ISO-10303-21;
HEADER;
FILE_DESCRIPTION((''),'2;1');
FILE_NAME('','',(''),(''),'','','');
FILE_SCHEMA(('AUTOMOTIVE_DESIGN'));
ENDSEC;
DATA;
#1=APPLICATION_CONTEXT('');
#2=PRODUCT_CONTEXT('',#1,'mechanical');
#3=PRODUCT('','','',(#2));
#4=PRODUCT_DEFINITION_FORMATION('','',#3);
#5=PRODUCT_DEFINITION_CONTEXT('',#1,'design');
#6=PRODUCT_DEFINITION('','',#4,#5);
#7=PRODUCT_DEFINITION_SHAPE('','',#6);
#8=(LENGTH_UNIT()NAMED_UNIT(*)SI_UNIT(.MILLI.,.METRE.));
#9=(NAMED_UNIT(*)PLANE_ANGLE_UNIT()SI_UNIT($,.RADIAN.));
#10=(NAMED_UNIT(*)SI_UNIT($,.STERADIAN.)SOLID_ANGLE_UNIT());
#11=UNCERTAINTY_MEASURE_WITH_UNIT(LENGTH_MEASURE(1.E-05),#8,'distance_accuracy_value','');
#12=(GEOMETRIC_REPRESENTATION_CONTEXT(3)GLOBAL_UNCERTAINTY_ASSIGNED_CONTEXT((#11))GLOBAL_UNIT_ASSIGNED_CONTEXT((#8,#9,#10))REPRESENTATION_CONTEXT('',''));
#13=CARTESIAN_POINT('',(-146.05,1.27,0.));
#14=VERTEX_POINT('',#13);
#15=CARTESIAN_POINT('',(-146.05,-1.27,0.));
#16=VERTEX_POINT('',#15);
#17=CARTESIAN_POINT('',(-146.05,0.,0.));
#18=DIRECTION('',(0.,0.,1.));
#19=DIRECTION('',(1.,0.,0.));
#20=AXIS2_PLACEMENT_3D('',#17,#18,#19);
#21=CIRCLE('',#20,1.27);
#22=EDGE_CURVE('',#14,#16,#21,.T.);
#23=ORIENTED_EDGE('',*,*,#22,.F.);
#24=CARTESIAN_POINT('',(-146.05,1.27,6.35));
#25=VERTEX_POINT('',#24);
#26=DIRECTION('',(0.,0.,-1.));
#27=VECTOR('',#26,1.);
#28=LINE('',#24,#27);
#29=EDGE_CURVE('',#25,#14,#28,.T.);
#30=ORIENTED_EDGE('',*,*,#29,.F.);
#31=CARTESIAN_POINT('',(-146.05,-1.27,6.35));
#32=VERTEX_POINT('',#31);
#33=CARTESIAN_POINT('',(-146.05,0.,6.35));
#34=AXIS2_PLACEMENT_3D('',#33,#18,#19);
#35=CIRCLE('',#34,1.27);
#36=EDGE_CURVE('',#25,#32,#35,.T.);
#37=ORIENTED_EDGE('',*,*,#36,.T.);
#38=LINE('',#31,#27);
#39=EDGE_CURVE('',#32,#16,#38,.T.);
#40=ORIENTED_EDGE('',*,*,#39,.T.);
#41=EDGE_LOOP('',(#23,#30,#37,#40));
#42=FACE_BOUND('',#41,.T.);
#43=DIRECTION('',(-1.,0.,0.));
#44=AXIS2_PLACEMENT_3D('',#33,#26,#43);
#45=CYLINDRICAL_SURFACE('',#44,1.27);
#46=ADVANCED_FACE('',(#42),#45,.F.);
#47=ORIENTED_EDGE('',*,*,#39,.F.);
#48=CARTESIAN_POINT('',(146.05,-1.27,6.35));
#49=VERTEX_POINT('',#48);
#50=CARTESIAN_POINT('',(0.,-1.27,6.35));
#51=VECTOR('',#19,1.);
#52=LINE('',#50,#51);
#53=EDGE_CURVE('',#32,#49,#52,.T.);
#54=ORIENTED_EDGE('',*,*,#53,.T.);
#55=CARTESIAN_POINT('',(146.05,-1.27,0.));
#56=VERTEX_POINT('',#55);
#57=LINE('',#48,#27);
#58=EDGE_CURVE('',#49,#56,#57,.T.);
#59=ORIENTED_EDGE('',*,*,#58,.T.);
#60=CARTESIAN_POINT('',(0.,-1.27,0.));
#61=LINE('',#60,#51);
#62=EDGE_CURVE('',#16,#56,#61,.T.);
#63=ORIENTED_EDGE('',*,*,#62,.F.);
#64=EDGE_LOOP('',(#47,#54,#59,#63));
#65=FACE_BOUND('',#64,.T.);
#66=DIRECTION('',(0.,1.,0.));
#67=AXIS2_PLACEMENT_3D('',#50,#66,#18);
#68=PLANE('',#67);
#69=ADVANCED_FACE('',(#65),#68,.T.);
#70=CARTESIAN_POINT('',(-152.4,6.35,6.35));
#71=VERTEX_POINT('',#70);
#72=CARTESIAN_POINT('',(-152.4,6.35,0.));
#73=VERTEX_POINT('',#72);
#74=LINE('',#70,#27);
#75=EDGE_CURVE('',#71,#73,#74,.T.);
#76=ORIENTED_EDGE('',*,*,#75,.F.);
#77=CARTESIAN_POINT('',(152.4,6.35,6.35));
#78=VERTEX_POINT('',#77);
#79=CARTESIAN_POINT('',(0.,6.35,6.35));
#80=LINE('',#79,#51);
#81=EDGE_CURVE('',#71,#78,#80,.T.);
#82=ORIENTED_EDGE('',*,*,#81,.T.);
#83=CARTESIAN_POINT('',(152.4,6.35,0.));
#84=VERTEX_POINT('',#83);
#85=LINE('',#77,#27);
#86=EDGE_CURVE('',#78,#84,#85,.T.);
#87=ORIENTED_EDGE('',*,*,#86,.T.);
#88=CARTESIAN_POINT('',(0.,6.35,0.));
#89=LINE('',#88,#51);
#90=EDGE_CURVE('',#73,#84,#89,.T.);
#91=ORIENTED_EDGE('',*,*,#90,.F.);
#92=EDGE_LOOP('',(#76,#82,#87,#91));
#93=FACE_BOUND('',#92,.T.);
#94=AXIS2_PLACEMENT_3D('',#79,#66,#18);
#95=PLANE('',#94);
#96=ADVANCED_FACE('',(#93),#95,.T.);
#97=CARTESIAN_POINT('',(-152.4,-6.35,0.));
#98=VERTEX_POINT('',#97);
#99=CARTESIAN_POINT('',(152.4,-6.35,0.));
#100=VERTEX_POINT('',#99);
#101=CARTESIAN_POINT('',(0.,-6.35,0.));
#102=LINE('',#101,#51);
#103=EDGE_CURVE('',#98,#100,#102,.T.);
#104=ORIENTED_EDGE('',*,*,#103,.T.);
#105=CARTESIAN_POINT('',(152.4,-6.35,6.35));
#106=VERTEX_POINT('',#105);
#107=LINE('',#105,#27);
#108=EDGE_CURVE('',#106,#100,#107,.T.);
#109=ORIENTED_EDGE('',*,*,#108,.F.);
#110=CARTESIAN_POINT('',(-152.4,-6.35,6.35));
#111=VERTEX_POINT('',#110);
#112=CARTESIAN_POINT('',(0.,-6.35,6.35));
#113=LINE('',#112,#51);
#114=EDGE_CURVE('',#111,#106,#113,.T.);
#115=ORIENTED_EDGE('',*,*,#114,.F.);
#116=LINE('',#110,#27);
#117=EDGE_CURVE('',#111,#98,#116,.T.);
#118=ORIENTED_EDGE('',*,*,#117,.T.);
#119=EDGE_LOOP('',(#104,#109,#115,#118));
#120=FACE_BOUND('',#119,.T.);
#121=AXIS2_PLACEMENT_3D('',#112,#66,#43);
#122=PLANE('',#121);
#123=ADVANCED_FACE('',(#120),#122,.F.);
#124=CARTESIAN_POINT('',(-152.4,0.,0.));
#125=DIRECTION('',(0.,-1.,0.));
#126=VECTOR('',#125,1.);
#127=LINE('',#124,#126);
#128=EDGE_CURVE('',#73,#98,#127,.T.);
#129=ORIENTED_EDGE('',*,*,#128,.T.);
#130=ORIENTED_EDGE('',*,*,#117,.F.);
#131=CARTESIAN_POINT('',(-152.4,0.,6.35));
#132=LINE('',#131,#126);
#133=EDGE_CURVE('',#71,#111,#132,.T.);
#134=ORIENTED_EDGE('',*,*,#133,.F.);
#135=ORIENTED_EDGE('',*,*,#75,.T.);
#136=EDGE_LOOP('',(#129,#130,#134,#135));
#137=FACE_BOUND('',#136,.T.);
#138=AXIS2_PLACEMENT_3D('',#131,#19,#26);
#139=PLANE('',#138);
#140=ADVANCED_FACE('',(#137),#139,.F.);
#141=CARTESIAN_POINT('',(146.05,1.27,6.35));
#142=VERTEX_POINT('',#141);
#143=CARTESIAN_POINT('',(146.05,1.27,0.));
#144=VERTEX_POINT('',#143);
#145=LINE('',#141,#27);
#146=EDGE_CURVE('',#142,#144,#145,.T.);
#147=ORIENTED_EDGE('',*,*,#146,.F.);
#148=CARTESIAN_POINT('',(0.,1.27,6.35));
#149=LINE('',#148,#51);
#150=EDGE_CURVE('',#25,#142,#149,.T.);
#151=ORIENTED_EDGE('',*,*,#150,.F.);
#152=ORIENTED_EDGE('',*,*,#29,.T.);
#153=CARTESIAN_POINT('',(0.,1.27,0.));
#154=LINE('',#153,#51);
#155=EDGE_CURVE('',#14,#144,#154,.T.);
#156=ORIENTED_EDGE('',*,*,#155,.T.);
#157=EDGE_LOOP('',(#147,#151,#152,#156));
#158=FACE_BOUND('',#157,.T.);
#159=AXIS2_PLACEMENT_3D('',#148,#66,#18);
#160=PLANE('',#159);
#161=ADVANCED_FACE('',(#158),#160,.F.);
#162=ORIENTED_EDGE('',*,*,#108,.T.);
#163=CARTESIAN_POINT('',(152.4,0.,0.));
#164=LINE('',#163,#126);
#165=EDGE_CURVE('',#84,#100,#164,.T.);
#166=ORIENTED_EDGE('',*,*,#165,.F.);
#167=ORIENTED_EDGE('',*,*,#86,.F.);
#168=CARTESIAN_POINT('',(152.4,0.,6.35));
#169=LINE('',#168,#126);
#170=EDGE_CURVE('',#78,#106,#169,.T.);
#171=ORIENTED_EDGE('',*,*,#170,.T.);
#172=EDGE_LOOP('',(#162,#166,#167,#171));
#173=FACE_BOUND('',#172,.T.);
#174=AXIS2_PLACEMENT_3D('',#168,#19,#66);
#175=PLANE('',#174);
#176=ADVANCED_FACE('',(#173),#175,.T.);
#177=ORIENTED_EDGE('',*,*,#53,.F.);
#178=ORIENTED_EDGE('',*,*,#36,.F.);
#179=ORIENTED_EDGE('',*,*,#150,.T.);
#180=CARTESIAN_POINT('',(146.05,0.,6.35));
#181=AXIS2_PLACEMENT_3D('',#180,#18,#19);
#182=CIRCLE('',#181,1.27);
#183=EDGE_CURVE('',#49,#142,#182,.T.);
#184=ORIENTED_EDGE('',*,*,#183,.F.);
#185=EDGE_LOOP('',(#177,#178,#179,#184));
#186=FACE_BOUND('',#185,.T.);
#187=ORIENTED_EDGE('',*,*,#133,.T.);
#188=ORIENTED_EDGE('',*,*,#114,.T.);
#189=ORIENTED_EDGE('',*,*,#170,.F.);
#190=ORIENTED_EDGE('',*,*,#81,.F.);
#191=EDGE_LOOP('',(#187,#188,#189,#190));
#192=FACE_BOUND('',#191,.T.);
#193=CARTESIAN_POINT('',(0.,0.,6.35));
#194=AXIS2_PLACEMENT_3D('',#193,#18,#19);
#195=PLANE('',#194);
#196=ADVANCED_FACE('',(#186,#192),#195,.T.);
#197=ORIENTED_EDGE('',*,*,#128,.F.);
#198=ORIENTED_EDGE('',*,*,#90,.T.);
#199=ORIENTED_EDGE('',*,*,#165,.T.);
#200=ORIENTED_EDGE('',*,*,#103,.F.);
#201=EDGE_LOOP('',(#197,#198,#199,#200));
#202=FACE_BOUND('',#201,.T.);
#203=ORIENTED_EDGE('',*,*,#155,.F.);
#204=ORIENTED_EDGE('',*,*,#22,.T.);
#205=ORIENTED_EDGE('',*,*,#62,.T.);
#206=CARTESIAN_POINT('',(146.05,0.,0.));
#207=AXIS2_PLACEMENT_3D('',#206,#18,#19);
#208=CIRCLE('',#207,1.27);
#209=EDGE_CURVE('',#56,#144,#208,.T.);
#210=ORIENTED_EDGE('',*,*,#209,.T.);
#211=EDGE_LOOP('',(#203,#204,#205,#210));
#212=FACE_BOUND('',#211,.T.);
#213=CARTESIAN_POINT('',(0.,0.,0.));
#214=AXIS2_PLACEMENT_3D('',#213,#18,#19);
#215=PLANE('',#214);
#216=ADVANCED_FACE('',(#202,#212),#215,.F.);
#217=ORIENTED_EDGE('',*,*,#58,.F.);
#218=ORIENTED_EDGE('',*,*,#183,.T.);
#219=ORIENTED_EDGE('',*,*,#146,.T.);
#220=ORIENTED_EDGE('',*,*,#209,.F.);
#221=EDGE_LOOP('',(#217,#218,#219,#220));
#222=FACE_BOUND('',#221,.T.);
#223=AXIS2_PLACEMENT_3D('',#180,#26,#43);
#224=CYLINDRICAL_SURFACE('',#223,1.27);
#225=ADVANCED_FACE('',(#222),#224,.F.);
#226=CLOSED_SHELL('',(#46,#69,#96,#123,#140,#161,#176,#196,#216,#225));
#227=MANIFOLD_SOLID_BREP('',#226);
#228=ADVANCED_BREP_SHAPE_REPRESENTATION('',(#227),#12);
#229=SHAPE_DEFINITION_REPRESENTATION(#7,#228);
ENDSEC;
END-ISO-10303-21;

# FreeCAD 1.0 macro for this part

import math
import FreeCAD as App
import Part
import Sketcher
Q = App.Units.Quantity

doc = App.newDocument("Part")
body = doc.addObject("PartDesign::Body", "Body")

# Sketch on XY plane
sketch1 = body.newObject("Sketcher::SketchObject", "Sketch")
sketch1.AttachmentSupport = (doc.getObject("XY_Plane"), [""])
sketch1.MapMode = "FlatFace"
sketch1.addGeometry([
    Part.LineSegment(App.Vector(-152.4, 6.35, 0), App.Vector(-152.4, -6.35, 0)),  # 0
    Part.LineSegment(App.Vector(-152.4, -6.35, 0), App.Vector(152.4, -6.35, 0)),  # 1
    Part.LineSegment(App.Vector(152.4, -6.35, 0), App.Vector(152.4, 6.35, 0)),  # 2
    Part.LineSegment(App.Vector(152.4, 6.35, 0), App.Vector(-152.4, 6.35, 0)),  # 3
    Part.LineSegment(App.Vector(146.05, -1.27, 0), App.Vector(-146.05, -1.27, 0)),  # 4
    Part.ArcOfCircle(Part.Circle(App.Vector(-146.05, 0, 0), App.Vector(0, 0, 1), 1.27), math.radians(90), math.radians(270)),  # 5
    Part.LineSegment(App.Vector(-146.05, 1.27, 0), App.Vector(146.05, 1.27, 0)),  # 6
    Part.ArcOfCircle(Part.Circle(App.Vector(146.05, 0, 0), App.Vector(0, 0, 1), 1.27), math.radians(0), math.radians(90)),  # 7
    Part.ArcOfCircle(Part.Circle(App.Vector(146.05, 0, 0), App.Vector(0, 0, 1), 1.27), math.radians(-90), math.radians(0)),  # 8
], False)
sketch1.addConstraint([
    Sketcher.Constraint("Coincident", 0, 2, 1, 1),
    Sketcher.Constraint("Coincident", 1, 2, 2, 1),
    Sketcher.Constraint("Coincident", 2, 2, 3, 1),
    Sketcher.Constraint("Coincident", 3, 2, 0, 1),
    Sketcher.Constraint("Tangent", 4, 2, 5, 2),
    Sketcher.Constraint("Tangent", 5, 1, 6, 1),
    Sketcher.Constraint("Tangent", 6, 2, 7, 2),
    Sketcher.Constraint("Tangent", 7, 1, 8, 2),
    Sketcher.Constraint("Tangent", 8, 1, 4, 1),
    Sketcher.Constraint("Vertical", 0),
    Sketcher.Constraint("Horizontal", 1),
    Sketcher.Constraint("Vertical", 2),
    Sketcher.Constraint("Horizontal", 3),
    Sketcher.Constraint("Horizontal", 4),
    Sketcher.Constraint("Horizontal", 6),
    Sketcher.Constraint("Equal", 5, 7),
    Sketcher.Constraint("Symmetric", 5, 3, 7, 3, -1, 1),
    Sketcher.Constraint("Symmetric", 0, 2, 2, 2, -1, 1),
    Sketcher.Constraint("PointOnObject", 7, 1, -1),
    Sketcher.Constraint("DistanceX", 1, 1, 1, 2, Q("12 in")),
    Sketcher.Constraint("Radius", 5, Q("0.05 in")),
    Sketcher.Constraint("DistanceX", 4, 2, 4, 1, Q("11.5 in")),
    Sketcher.Constraint("DistanceY", 0, 2, 0, 1, Q("0.5 in")),
])
pad1 = body.newObject("PartDesign::Pad", "Pad")
pad1.Profile = sketch1
pad1.Length = Q("0.25 in")

doc.recompute()
